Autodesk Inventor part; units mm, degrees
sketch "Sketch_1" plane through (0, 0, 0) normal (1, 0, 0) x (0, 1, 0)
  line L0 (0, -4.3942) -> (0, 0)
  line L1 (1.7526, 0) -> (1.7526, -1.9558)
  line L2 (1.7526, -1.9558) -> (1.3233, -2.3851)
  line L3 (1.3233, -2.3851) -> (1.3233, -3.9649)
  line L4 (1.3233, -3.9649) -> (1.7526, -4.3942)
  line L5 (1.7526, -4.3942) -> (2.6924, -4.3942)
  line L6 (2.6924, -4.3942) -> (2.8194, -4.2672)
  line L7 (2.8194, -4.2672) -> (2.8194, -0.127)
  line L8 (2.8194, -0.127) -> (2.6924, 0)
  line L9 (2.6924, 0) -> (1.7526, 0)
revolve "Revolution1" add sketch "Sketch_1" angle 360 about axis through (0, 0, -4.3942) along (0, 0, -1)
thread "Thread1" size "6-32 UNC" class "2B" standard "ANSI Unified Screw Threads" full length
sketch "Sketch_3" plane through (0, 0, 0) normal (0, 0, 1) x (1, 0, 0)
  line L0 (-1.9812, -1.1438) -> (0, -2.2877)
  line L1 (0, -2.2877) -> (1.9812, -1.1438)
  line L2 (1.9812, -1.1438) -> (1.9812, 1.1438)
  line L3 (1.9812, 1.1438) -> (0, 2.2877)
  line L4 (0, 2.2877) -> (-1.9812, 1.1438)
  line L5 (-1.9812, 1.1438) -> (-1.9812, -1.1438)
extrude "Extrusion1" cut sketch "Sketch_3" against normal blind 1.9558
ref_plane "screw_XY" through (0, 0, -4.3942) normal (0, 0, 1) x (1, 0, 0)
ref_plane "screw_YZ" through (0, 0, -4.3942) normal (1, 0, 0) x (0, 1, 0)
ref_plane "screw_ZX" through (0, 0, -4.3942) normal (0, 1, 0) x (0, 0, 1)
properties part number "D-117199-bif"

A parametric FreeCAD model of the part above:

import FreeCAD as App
import Part
import Sketcher
from FreeCAD import Vector
Q = App.Units.Quantity

doc = App.newDocument("Part")
body = doc.addObject("PartDesign::Body", "Body")

# Sketch on YZ plane
sketch1 = body.newObject("Sketcher::SketchObject", "Sketch")
sketch1.AttachmentSupport = (doc.getObject("YZ_Plane"), [""])
sketch1.MapMode = "FlatFace"
sketch1.addGeometry(Part.LineSegment(Vector(2.6924, 0, 0), Vector(1.7526, 0, 0)), False)
sketch1.addGeometry(Part.LineSegment(Vector(1.7526, 0, 0), Vector(1.7526, -1.9558, 0)), False)
sketch1.addGeometry(Part.LineSegment(Vector(1.7526, -1.9558, 0), Vector(1.3233, -2.3851, 0)), False)
sketch1.addGeometry(Part.LineSegment(Vector(1.3233, -2.3851, 0), Vector(1.3233, -3.9649, 0)), False)
sketch1.addGeometry(Part.LineSegment(Vector(1.3233, -3.9649, 0), Vector(1.7526, -4.3942, 0)), False)
sketch1.addGeometry(Part.LineSegment(Vector(1.7526, -4.3942, 0), Vector(2.6924, -4.3942, 0)), False)
sketch1.addGeometry(Part.LineSegment(Vector(2.6924, -4.3942, 0), Vector(2.8194, -4.2672, 0)), False)
sketch1.addGeometry(Part.LineSegment(Vector(2.8194, -4.2672, 0), Vector(2.8194, -0.127, 0)), False)
sketch1.addGeometry(Part.LineSegment(Vector(2.8194, -0.127, 0), Vector(2.6924, 0, 0)), False)
sketch1.addConstraint(Sketcher.Constraint("Coincident", 0, 2, 1, 1))
sketch1.addConstraint(Sketcher.Constraint("Coincident", 1, 2, 2, 1))
sketch1.addConstraint(Sketcher.Constraint("Coincident", 2, 2, 3, 1))
sketch1.addConstraint(Sketcher.Constraint("Coincident", 3, 2, 4, 1))
sketch1.addConstraint(Sketcher.Constraint("Coincident", 4, 2, 5, 1))
sketch1.addConstraint(Sketcher.Constraint("Coincident", 5, 2, 6, 1))
sketch1.addConstraint(Sketcher.Constraint("Coincident", 6, 2, 7, 1))
sketch1.addConstraint(Sketcher.Constraint("Coincident", 7, 2, 8, 1))
sketch1.addConstraint(Sketcher.Constraint("Coincident", 8, 2, 0, 1))
sketch1.addConstraint(Sketcher.Constraint("Horizontal", 0))
sketch1.addConstraint(Sketcher.Constraint("Vertical", 1))
sketch1.addConstraint(Sketcher.Constraint("Vertical", 3))
sketch1.addConstraint(Sketcher.Constraint("Horizontal", 5))
sketch1.addConstraint(Sketcher.Constraint("Vertical", 7))
sketch1.addConstraint(Sketcher.Constraint("PointOnObject", 0, 2, -1))
sketch1.addConstraint(Sketcher.Constraint("Perpendicular", 2, 4))
sketch1.addConstraint(Sketcher.Constraint("Perpendicular", 4, 6))
sketch1.addConstraint(Sketcher.Constraint("Perpendicular", 6, 8))
sketch1.addConstraint(Sketcher.Constraint("Vertical", 1, 2, 4, 2))
sketch1.addConstraint(Sketcher.Constraint("Vertical", 5, 2, 8, 2))
sketch1.addConstraint(Sketcher.Constraint("Equal", 2, 4))
sketch1.addConstraint(Sketcher.Constraint("DistanceX", 0, 2, 0, 1, Q("0.037 in")))
sketch1.addConstraint(Sketcher.Constraint("DistanceY", 1, 2, 1, 1, Q("0.077 in")))
sketch1.addConstraint(Sketcher.Constraint("DistanceY", 7, 1, 7, 2, Q("0.163 in")))
sketch1.addConstraint(Sketcher.Constraint("DistanceY", 3, 2, 3, 1, Q("0.0622 in")))
sketch1.addConstraint(Sketcher.Constraint("DistanceX", -1, 1, 0, 2, Q("0.069 in")))
sketch1.addConstraint(Sketcher.Constraint("DistanceY", 4, 2, -1, 1, Q("0.173 in")))
revolution = body.newObject("PartDesign::Revolution", "Revolution")
revolution.Profile = sketch1
revolution.ReferenceAxis = (sketch1, ["V_Axis"])
revolution.Angle = 360

# Sketch on XY plane
sketch2 = body.newObject("Sketcher::SketchObject", "Sketch001")
sketch2.AttachmentSupport = (doc.getObject("XY_Plane"), [""])
sketch2.MapMode = "FlatFace"
sketch2.addGeometry(Part.LineSegment(Vector(-1.9812, 1.1438, 0), Vector(-1.9812, -1.1438, 0)), False)
sketch2.addGeometry(Part.LineSegment(Vector(-1.9812, -1.1438, 0), Vector(0, -2.2877, 0)), False)
sketch2.addGeometry(Part.LineSegment(Vector(0, -2.2877, 0), Vector(1.9812, -1.1438, 0)), False)
sketch2.addGeometry(Part.LineSegment(Vector(1.9812, -1.1438, 0), Vector(1.9812, 1.1438, 0)), False)
sketch2.addGeometry(Part.LineSegment(Vector(1.9812, 1.1438, 0), Vector(0, 2.2877, 0)), False)
sketch2.addGeometry(Part.LineSegment(Vector(0, 2.2877, 0), Vector(-1.9812, 1.1438, 0)), False)
sketch2.addConstraint(Sketcher.Constraint("Coincident", 0, 2, 1, 1))
sketch2.addConstraint(Sketcher.Constraint("Coincident", 1, 2, 2, 1))
sketch2.addConstraint(Sketcher.Constraint("Coincident", 2, 2, 3, 1))
sketch2.addConstraint(Sketcher.Constraint("Coincident", 3, 2, 4, 1))
sketch2.addConstraint(Sketcher.Constraint("Coincident", 4, 2, 5, 1))
sketch2.addConstraint(Sketcher.Constraint("Coincident", 5, 2, 0, 1))
sketch2.addConstraint(Sketcher.Constraint("Vertical", 0))
sketch2.addConstraint(Sketcher.Constraint("Vertical", 3))
sketch2.addConstraint(Sketcher.Constraint("Symmetric", 0, 2, 3, 2, -1, 1))
sketch2.addConstraint(Sketcher.Constraint("Symmetric", 1, 2, 4, 2, -1, 1))
sketch2.addConstraint(Sketcher.Constraint("PointOnObject", 1, 2, -2))
sketch2.addConstraint(Sketcher.Constraint("Parallel", 2, 5))
sketch2.addConstraint(Sketcher.Constraint("Horizontal", 0, 2, 2, 2))
sketch2.addConstraint(Sketcher.Constraint("Angle", 1, Q("-30.0012 deg")))
sketch2.addConstraint(Sketcher.Constraint("DistanceX", 0, 2, -1, 1, Q("0.078 in")))
sketch2.addConstraint(Sketcher.Constraint("DistanceY", 0, 2, 0, 1, 2.2876))
pocket1 = body.newObject("PartDesign::Pocket", "Pocket")
pocket1.Profile = sketch2
pocket1.Length = Q("0.077 in")

doc.recompute()
